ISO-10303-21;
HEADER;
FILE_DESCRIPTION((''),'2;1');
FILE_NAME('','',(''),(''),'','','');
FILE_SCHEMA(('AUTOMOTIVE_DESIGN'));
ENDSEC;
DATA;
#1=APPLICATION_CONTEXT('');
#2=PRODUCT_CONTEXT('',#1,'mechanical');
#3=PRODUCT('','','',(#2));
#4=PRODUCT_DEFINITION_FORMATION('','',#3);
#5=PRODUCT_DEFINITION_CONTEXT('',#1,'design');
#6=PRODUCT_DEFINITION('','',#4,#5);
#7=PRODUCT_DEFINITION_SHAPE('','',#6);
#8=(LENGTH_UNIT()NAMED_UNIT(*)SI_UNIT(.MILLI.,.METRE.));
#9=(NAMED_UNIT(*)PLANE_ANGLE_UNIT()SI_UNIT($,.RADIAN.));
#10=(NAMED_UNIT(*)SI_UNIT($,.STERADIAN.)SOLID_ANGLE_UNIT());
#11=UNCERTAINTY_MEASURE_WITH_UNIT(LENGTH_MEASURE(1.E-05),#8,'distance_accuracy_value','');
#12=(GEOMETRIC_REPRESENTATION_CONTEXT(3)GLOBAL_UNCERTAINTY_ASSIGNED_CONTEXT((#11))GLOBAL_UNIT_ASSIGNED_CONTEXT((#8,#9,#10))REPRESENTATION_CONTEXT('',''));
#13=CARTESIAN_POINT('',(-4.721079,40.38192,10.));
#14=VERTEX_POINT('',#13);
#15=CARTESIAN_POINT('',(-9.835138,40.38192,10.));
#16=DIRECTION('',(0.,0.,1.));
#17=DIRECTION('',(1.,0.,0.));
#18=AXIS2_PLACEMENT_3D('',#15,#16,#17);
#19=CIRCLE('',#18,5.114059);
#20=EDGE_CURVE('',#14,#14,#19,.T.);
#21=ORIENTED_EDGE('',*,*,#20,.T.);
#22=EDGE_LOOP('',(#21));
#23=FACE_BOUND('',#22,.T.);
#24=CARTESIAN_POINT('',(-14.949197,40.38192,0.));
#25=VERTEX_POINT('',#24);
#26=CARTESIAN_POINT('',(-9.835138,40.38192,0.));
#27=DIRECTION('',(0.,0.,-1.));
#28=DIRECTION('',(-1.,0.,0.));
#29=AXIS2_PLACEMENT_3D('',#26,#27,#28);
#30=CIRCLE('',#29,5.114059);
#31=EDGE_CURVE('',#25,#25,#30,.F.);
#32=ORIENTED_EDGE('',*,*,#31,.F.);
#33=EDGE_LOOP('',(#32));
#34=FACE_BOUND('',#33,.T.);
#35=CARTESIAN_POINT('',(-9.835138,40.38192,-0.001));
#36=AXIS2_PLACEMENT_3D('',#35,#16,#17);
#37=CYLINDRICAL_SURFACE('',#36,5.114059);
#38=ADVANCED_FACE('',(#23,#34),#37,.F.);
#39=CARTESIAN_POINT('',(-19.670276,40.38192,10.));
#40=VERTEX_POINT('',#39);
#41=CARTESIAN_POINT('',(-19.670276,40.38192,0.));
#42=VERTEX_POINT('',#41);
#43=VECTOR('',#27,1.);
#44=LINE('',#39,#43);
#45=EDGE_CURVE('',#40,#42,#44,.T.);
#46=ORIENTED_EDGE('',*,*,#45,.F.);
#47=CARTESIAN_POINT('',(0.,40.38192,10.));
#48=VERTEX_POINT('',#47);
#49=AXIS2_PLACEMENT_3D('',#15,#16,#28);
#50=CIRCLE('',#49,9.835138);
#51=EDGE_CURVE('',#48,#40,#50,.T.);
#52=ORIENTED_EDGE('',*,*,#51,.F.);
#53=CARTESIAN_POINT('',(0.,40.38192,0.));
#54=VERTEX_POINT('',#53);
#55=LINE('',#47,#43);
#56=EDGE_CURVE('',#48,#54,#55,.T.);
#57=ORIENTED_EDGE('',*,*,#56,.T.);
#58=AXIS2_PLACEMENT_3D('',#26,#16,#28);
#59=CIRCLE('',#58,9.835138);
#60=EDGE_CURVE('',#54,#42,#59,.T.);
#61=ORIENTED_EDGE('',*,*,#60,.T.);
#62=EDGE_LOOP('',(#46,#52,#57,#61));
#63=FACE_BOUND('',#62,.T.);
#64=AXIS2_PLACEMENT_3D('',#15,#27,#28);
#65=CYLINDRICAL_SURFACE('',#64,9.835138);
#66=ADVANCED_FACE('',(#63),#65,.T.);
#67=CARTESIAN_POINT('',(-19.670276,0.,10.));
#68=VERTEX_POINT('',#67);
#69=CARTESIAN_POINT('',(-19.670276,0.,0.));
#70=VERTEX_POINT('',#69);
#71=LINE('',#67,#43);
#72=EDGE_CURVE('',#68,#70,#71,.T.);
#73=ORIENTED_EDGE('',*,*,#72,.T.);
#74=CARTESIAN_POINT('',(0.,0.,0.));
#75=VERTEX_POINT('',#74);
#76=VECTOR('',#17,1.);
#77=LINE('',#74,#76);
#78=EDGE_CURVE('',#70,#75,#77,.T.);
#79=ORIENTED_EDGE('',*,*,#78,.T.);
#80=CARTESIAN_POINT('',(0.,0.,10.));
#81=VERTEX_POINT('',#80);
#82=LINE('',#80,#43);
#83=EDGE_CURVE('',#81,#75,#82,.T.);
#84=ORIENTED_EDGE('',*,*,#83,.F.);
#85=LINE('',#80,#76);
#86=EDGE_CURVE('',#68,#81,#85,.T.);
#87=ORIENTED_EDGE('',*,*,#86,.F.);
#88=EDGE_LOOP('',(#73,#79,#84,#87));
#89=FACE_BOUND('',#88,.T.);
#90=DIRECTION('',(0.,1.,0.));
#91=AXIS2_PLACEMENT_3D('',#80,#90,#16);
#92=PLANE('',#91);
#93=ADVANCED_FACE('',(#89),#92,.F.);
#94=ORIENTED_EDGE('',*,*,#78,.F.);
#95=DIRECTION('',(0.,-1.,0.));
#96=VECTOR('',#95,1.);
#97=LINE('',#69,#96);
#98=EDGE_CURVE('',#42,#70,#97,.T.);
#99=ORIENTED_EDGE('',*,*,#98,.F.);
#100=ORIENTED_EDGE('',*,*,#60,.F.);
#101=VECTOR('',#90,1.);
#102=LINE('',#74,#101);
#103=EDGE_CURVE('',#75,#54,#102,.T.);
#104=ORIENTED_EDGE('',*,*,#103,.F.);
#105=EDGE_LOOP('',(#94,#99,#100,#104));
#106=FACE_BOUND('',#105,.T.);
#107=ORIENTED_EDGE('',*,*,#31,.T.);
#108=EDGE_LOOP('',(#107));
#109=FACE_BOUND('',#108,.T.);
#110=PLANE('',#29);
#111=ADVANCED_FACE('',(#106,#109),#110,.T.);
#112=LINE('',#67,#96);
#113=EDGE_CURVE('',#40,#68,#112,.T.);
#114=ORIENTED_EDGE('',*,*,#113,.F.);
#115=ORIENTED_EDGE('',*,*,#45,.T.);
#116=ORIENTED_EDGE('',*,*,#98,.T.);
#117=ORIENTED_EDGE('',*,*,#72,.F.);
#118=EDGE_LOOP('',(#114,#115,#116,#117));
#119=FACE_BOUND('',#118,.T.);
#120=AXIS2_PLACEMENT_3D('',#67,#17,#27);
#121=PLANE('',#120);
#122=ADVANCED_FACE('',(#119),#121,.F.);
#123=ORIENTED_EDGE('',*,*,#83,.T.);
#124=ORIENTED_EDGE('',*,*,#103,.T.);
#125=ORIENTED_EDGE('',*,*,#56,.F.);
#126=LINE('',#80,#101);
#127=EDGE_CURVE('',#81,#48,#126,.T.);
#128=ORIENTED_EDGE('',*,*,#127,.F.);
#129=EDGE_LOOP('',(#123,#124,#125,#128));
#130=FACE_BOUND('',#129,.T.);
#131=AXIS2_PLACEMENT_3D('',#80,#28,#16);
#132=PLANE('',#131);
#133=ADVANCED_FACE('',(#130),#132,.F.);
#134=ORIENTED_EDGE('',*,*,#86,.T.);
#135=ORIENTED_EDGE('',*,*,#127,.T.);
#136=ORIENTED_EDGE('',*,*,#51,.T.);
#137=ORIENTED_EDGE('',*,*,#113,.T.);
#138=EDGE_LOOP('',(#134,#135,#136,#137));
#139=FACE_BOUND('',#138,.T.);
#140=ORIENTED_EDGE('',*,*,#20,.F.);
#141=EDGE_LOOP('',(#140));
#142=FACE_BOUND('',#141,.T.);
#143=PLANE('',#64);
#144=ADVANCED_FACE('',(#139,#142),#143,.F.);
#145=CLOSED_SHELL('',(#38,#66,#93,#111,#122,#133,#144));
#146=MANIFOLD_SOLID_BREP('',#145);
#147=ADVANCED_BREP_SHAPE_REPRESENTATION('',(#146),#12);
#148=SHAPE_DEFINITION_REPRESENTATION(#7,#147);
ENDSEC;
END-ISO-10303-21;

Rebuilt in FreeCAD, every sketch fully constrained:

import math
import FreeCAD as App
import Part
import Sketcher
from FreeCAD import Vector
Q = App.Units.Quantity

doc = App.newDocument("Part")
params = doc.addObject("Spreadsheet::Sheet", "Params")
for row, (alias, value) in enumerate([
    ("pad1_length", "10 mm"),
], start=1):
    params.set(f"A{row}", alias)
    params.set(f"B{row}", "=" + value)
    params.setAlias(f"B{row}", alias)

body = doc.addObject("PartDesign::Body", "Body")

sketch1 = doc.addObject("Sketcher::SketchObject", "Sketch")
body.addObject(sketch1)
sketch1.AttachmentSupport = (doc.XY_Plane, [""])
sketch1.MapMode = "FlatFace"
sketch1.addGeometry([
    Part.LineSegment(Vector(-20, 0, 0), Vector(0, 0, 0)),
    Part.LineSegment(Vector(0, 0, 0), Vector(0, 40, 0)),
    Part.ArcOfCircle(Part.Circle(Vector(-10, 40, 0), Vector(0, 0, 1), 10), math.radians(0), math.radians(180)),
    Part.LineSegment(Vector(-20, 40, 0), Vector(-20, 0, 0)),
], False)
sketch1.addConstraint([
    Sketcher.Constraint("Coincident", 0, 2, 1, 1),
    Sketcher.Constraint("Tangent", 1, 2, 2, 1),
    Sketcher.Constraint("Tangent", 2, 2, 3, 1),
    Sketcher.Constraint("Coincident", 3, 2, 0, 1),
    Sketcher.Constraint("Horizontal", 0),
    Sketcher.Constraint("Vertical", 1),
    Sketcher.Constraint("Vertical", 3),
    Sketcher.Constraint("Coincident", 0, 2, -1, 1),
    Sketcher.Constraint("Radius", 2, Q("9.835138 mm")),
    Sketcher.Constraint("DistanceY", 1, 1, 1, 2, Q("40.38192 mm")),
])
pad1 = doc.addObject("PartDesign::Pad", "Pad")
body.addObject(pad1)
pad1.Profile = sketch1
pad1.setExpression("Length", "Params.pad1_length")

sketch2 = doc.addObject("Sketcher::SketchObject", "Sketch001")
body.addObject(sketch2)
sketch2.AttachmentSupport = (doc.XY_Plane, [""])
sketch2.MapMode = "FlatFace"
sketch2.AttachmentOffset = App.Placement(Vector(0, 0, 10), App.Rotation())
sketch2.addGeometry(Part.Circle(Vector(-10, 40, 0), Vector(0, 0, 1), 5), False)
sketch2.addConstraint([
    Sketcher.Constraint("Diameter", 0, Q("10.228118 mm")),
    Sketcher.Constraint("DistanceX", 0, 3, -1, 1, Q("9.835138 mm")),
    Sketcher.Constraint("DistanceY", -1, 1, 0, 3, Q("40.38192 mm")),
])
pocket1 = doc.addObject("PartDesign::Pocket", "Pocket")
body.addObject(pocket1)
pocket1.Profile = sketch2
pocket1.Type = "UpToFirst"

doc.recompute()
